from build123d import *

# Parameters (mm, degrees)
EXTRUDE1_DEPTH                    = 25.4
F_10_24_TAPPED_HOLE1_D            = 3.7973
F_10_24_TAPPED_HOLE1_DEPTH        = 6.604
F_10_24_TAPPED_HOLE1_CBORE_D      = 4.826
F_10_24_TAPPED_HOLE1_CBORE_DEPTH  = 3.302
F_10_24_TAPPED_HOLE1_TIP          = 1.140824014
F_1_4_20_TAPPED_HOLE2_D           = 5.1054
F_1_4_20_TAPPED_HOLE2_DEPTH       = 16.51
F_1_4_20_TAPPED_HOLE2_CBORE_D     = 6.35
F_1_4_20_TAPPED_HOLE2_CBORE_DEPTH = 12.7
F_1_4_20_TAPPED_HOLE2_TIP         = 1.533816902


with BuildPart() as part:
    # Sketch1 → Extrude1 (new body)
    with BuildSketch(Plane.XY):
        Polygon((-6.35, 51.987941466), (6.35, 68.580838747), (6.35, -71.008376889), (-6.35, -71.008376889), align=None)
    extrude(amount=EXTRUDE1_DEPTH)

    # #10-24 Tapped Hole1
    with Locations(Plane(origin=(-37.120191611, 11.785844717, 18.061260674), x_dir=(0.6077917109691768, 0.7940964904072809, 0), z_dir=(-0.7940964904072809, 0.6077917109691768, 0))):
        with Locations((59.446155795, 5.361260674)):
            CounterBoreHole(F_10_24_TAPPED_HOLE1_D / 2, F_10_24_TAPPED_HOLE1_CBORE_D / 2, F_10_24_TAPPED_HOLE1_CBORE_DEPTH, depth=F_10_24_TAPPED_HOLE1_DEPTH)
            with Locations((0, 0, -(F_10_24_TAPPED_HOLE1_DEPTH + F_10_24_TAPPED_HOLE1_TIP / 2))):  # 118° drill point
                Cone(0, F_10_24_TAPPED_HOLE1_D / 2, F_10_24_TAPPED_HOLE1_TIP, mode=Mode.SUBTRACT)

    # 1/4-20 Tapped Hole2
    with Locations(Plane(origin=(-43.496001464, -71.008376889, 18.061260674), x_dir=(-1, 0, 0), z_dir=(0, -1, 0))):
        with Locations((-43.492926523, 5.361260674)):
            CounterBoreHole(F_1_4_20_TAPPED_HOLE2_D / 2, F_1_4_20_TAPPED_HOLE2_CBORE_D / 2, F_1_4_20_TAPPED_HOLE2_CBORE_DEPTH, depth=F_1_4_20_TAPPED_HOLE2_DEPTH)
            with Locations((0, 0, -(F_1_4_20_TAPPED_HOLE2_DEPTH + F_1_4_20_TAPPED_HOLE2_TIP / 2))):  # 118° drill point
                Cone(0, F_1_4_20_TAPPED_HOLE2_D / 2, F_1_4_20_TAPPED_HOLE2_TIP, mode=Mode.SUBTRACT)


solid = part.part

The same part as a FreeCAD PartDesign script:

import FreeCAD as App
import Part
import Sketcher

V = App.Vector
Q = App.Units.Quantity

doc = App.newDocument("Part")
body = doc.addObject("PartDesign::Body", "Body")

# Sketch on XY plane
sketch1 = body.newObject("Sketcher::SketchObject", "Sketch")
sketch1.AttachmentSupport = (doc.getObject("XY_Plane"), [""])
sketch1.MapMode = "FlatFace"
sketch1.addGeometry([
    Part.LineSegment(V(6, 69, 0), V(-6, 52, 0)),
    Part.LineSegment(V(-6, 52, 0), V(-6, -71, 0)),
    Part.LineSegment(V(-6, -71, 0), V(6, -71, 0)),
    Part.LineSegment(V(6, -71, 0), V(6, 69, 0)),
], False)
sketch1.addConstraint([
    Sketcher.Constraint("Coincident", 0, 2, 1, 1),
    Sketcher.Constraint("Coincident", 1, 2, 2, 1),
    Sketcher.Constraint("Coincident", 2, 2, 3, 1),
    Sketcher.Constraint("Coincident", 3, 2, 0, 1),
    Sketcher.Constraint("Vertical", 1),
    Sketcher.Constraint("Horizontal", 2),
    Sketcher.Constraint("Vertical", 3),
    Sketcher.Constraint("DistanceX", 2, 1, 2, 2, Q("0.5 in")),
    Sketcher.Constraint("DistanceX", 0, 2, -1, 1, Q("0.25 in")),
    Sketcher.Constraint("Angle", 0, Q("-127.43 deg")),
    Sketcher.Constraint("DistanceY", 1, 2, 1, 1, Q("122.996318 mm")),
    Sketcher.Constraint("DistanceY", -1, 1, 0, 2, Q("51.987941 mm")),
])
pad1 = body.newObject("PartDesign::Pad", "Pad")
pad1.Profile = sketch1
pad1.Length = Q("1 in")

# Sketch on an angled plane
sketch2 = body.newObject("Sketcher::SketchObject", "Sketch001")
sketch2.Placement = App.Placement(V(-29.095975, 22.269703, 0), App.Rotation(V(0.607791711, 0.79409649, 0), V(0, 0, -0.999999999), V(-0.79409649, 0.607791711, 0), "ZXY"))
sketch2.addGeometry(Part.Circle(V(46.2, -12.7, 0), V(0, 0, 1), 1.9), False)
sketch2.addConstraint([
    Sketcher.Constraint("Diameter", 0, Q("0.1495 in")),
    Sketcher.Constraint("DistanceY", 0, 3, -1, 1, Q("0.5 in")),
    Sketcher.Constraint("DistanceX", -1, 1, 0, 3, Q("46.243909 mm")),
])
doc.recompute()
hole = body.newObject("PartDesign::Hole", "Hole")
hole.Profile = sketch2
hole.ThreadType = "None"
hole.Diameter = Q("0.1495 in")
hole.DepthType = "Dimension"
hole.Depth = Q("0.26 in")
hole.DrillPoint = "Angled"
hole.DrillPointAngle = 118
hole.HoleCutType = "Counterbore"
hole.HoleCutDiameter = Q("0.19 in")
hole.HoleCutDepth = Q("0.13 in")

# Sketch on XZ plane
sketch3 = body.newObject("Sketcher::SketchObject", "Sketch002")
sketch3.AttachmentSupport = (doc.getObject("XZ_Plane"), [""])
sketch3.MapMode = "FlatFace"
sketch3.AttachmentOffset = App.Placement(V(0, 0, 71.008377), App.Rotation())
sketch3.addGeometry(Part.Circle(V(0, 12.7, 0), V(0, 0, 1), 2.6), False)
sketch3.addConstraint([
    Sketcher.Constraint("Diameter", 0, Q("0.201 in")),
    Sketcher.Constraint("DistanceY", -1, 1, 0, 3, Q("0.5 in")),
    Sketcher.Constraint("DistanceX", 0, 3, -1, 1, Q("0.003075 mm")),
])
doc.recompute()
hole2 = body.newObject("PartDesign::Hole", "Hole001")
hole2.Profile = sketch3
hole2.ThreadType = "None"
hole2.Diameter = Q("0.201 in")
hole2.DepthType = "Dimension"
hole2.Depth = Q("0.65 in")
hole2.DrillPoint = "Angled"
hole2.DrillPointAngle = 118
hole2.HoleCutType = "Counterbore"
hole2.HoleCutDiameter = Q("0.25 in")
hole2.HoleCutDepth = Q("0.5 in")

doc.recompute()
